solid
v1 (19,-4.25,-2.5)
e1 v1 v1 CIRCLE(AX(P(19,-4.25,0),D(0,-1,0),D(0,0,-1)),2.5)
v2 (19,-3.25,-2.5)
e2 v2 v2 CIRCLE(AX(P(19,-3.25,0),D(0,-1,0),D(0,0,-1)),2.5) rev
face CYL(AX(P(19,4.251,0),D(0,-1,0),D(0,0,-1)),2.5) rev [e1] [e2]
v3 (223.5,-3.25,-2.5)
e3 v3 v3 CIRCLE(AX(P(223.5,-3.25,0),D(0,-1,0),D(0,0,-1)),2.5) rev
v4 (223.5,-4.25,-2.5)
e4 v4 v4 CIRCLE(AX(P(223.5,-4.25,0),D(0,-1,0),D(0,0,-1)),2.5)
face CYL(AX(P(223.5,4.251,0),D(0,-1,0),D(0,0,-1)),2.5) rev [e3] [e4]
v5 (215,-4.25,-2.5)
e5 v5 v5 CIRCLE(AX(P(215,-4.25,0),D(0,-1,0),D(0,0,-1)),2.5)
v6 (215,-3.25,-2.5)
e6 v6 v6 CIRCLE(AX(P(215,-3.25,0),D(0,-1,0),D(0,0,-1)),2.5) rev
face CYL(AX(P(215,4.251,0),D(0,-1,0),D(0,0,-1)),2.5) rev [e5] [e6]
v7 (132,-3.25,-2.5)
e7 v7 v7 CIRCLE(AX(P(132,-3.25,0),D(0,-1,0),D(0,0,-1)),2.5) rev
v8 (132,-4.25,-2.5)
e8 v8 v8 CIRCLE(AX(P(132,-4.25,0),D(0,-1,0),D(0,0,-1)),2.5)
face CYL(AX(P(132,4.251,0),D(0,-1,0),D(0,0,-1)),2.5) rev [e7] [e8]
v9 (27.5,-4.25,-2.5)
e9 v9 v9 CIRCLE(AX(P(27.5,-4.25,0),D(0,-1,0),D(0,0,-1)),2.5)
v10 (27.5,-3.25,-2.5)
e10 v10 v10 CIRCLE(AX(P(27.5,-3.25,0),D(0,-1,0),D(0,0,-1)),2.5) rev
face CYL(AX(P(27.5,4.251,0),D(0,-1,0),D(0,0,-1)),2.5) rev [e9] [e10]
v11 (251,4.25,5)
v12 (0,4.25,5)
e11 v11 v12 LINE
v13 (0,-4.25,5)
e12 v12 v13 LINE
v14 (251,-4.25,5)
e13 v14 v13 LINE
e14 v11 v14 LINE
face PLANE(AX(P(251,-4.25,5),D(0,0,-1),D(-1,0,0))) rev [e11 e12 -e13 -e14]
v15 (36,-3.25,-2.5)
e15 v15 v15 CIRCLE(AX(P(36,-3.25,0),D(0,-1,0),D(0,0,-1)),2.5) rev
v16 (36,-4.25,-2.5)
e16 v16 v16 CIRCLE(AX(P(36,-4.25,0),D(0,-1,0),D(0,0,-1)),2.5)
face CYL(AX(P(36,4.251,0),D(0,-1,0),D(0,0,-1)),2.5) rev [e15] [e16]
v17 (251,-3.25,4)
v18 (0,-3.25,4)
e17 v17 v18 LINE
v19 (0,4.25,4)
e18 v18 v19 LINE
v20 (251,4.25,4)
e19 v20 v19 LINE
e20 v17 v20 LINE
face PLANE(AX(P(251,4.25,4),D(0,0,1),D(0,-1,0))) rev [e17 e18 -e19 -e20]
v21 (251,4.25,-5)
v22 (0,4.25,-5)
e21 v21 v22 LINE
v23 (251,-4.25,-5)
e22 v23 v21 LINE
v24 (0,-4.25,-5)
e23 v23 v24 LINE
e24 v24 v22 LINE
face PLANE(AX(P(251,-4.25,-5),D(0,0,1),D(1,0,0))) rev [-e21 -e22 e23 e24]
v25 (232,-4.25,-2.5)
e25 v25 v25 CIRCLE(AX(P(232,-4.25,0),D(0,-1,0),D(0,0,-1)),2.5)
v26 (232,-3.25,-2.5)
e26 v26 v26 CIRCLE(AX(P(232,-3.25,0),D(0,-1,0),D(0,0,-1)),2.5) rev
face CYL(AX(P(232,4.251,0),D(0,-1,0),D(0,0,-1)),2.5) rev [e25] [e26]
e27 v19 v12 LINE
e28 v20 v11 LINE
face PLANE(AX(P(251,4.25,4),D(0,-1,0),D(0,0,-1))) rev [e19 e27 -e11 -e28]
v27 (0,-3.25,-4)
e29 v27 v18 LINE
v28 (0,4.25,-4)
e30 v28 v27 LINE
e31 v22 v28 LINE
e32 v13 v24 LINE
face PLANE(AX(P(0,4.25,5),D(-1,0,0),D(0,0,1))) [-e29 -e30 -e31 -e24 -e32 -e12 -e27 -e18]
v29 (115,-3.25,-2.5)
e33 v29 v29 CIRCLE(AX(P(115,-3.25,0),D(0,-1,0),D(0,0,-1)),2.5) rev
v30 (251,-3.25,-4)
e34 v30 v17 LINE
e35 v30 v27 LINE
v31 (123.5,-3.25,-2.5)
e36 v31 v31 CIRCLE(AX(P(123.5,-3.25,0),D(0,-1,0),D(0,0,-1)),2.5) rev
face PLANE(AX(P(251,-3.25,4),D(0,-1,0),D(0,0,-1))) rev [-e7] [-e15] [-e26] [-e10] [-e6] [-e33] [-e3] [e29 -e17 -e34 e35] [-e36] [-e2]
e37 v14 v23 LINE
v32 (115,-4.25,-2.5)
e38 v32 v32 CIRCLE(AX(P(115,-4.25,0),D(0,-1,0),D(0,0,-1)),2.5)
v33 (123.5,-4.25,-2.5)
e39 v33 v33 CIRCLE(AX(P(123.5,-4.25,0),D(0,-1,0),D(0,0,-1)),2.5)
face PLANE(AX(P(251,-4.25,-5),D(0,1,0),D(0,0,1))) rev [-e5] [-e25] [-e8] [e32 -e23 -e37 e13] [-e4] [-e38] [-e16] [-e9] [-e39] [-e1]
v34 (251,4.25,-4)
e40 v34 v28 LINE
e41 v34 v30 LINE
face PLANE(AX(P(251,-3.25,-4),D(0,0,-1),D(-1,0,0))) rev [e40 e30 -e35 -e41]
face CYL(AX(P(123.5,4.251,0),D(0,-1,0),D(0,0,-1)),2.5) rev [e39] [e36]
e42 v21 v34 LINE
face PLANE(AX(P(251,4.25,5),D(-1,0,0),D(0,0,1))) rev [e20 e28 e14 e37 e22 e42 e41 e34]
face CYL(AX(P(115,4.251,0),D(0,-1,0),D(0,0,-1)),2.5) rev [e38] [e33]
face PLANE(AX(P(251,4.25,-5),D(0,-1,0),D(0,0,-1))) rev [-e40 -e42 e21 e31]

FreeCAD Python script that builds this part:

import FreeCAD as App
import Part
import Sketcher
from FreeCAD import Vector


def add_polygon(sketch, points):
    """Adds a closed chain of lines whose ends are joined by coincident constraints."""
    first, n = sketch.GeometryCount, len(points)
    for a, b in zip(points, points[1:] + points[:1]):
        sketch.addGeometry(Part.LineSegment(App.Vector(*a, 0), App.Vector(*b, 0)), False)
    for i in range(n):
        sketch.addConstraint(Sketcher.Constraint("Coincident", first + i, 2, first + (i + 1) % n, 1))

doc = App.newDocument("Part")
body = doc.addObject("PartDesign::Body", "Body")

sketch1 = body.newObject("Sketcher::SketchObject", "Sketch")
sketch1.AttachmentSupport = (doc.getObject("YZ_Plane"), [""])
sketch1.MapMode = "FlatFace"
add_polygon(sketch1, [(-3.2, 4), (4.2, 4), (4.2, 5), (-4.2, 5), (-4.2, -5), (4.2, -5), (4.2, -4), (-3.2, -4)])
sketch1.addConstraint([
    Sketcher.Constraint("Horizontal", 0),
    Sketcher.Constraint("Vertical", 1),
    Sketcher.Constraint("Horizontal", 2),
    Sketcher.Constraint("Vertical", 3),
    Sketcher.Constraint("Horizontal", 4),
    Sketcher.Constraint("Vertical", 5),
    Sketcher.Constraint("Horizontal", 6),
    Sketcher.Constraint("Vertical", 7),
    Sketcher.Constraint("Symmetric", 1, 2, 3, 2, -1, 1),
    Sketcher.Constraint("Symmetric", 0, 2, 5, 2, -1),
    Sketcher.Constraint("DistanceY", 1, 1, 1, 2, 1.0),
    Sketcher.Constraint("DistanceY", 3, 2, 3, 1, 10.0),
    Sketcher.Constraint("DistanceX", 0, 1, 0, 2, 7.5),
    Sketcher.Constraint("DistanceX", 2, 2, 2, 1, 8.5),
])
pad1 = body.newObject("PartDesign::Pad", "Pad")
pad1.Profile = sketch1
pad1.Length = 251

sketch2 = body.newObject("Sketcher::SketchObject", "Sketch001")
sketch2.AttachmentSupport = (doc.getObject("XZ_Plane"), [""])
sketch2.MapMode = "FlatFace"
sketch2.AttachmentOffset = App.Placement(Vector(0, 0, 4.25), App.Rotation())
sketch2.addGeometry(Part.Circle(Vector(19, 0, 0), Vector(0, 0, 1), 2.5), False)
sketch2.addConstraint([
    Sketcher.Constraint("PointOnObject", 0, 3, -1),
    Sketcher.Constraint("Diameter", 0, 5.0),
    Sketcher.Constraint("DistanceX", -1, 1, 0, 3, 19.0),
])
pocket1 = body.newObject("PartDesign::Pocket", "Pocket")
pocket1.Profile = sketch2
pocket1.Type = "UpToFirst"

sketch3 = body.newObject("Sketcher::SketchObject", "Sketch002")
sketch3.AttachmentSupport = (doc.getObject("XZ_Plane"), [""])
sketch3.MapMode = "FlatFace"
sketch3.AttachmentOffset = App.Placement(Vector(0, 0, 4.25), App.Rotation())
sketch3.addGeometry(Part.Circle(Vector(27.5, 0, 0), Vector(0, 0, 1), 2.5), False)
sketch3.addConstraint([
    Sketcher.Constraint("PointOnObject", 0, 3, -1),
    Sketcher.Constraint("Diameter", 0, 5.0),
    Sketcher.Constraint("DistanceX", -1, 1, 0, 3, 27.5),
])
pocket2 = body.newObject("PartDesign::Pocket", "Pocket001")
pocket2.Profile = sketch3
pocket2.Type = "UpToFirst"

sketch4 = body.newObject("Sketcher::SketchObject", "Sketch003")
sketch4.AttachmentSupport = (doc.getObject("XZ_Plane"), [""])
sketch4.MapMode = "FlatFace"
sketch4.AttachmentOffset = App.Placement(Vector(0, 0, 4.25), App.Rotation())
sketch4.addGeometry(Part.Circle(Vector(36, 0, 0), Vector(0, 0, 1), 2.5), False)
sketch4.addConstraint([
    Sketcher.Constraint("PointOnObject", 0, 3, -1),
    Sketcher.Constraint("Diameter", 0, 5.0),
    Sketcher.Constraint("DistanceX", -1, 1, 0, 3, 36.0),
])
pocket3 = body.newObject("PartDesign::Pocket", "Pocket002")
pocket3.Profile = sketch4
pocket3.Type = "UpToFirst"

sketch5 = body.newObject("Sketcher::SketchObject", "Sketch004")
sketch5.AttachmentSupport = (doc.getObject("XZ_Plane"), [""])
sketch5.MapMode = "FlatFace"
sketch5.AttachmentOffset = App.Placement(Vector(0, 0, 4.25), App.Rotation())
sketch5.addGeometry(Part.Circle(Vector(115, 0, 0), Vector(0, 0, 1), 2.5), False)
sketch5.addConstraint([
    Sketcher.Constraint("PointOnObject", 0, 3, -1),
    Sketcher.Constraint("Diameter", 0, 5.0),
    Sketcher.Constraint("DistanceX", -1, 1, 0, 3, 115.0),
])
pocket4 = body.newObject("PartDesign::Pocket", "Pocket003")
pocket4.Profile = sketch5
pocket4.Type = "UpToFirst"

sketch6 = body.newObject("Sketcher::SketchObject", "Sketch005")
sketch6.AttachmentSupport = (doc.getObject("XZ_Plane"), [""])
sketch6.MapMode = "FlatFace"
sketch6.AttachmentOffset = App.Placement(Vector(0, 0, 4.25), App.Rotation())
sketch6.addGeometry(Part.Circle(Vector(123.5, 0, 0), Vector(0, 0, 1), 2.5), False)
sketch6.addConstraint([
    Sketcher.Constraint("PointOnObject", 0, 3, -1),
    Sketcher.Constraint("Diameter", 0, 5.0),
    Sketcher.Constraint("DistanceX", -1, 1, 0, 3, 123.5),
])
pocket5 = body.newObject("PartDesign::Pocket", "Pocket004")
pocket5.Profile = sketch6
pocket5.Type = "UpToFirst"

sketch7 = body.newObject("Sketcher::SketchObject", "Sketch006")
sketch7.AttachmentSupport = (doc.getObject("XZ_Plane"), [""])
sketch7.MapMode = "FlatFace"
sketch7.AttachmentOffset = App.Placement(Vector(0, 0, 4.25), App.Rotation())
sketch7.addGeometry(Part.Circle(Vector(132, 0, 0), Vector(0, 0, 1), 2.5), False)
sketch7.addConstraint([
    Sketcher.Constraint("PointOnObject", 0, 3, -1),
    Sketcher.Constraint("Diameter", 0, 5.0),
    Sketcher.Constraint("DistanceX", -1, 1, 0, 3, 132.0),
])
pocket6 = body.newObject("PartDesign::Pocket", "Pocket005")
pocket6.Profile = sketch7
pocket6.Type = "UpToFirst"

sketch8 = body.newObject("Sketcher::SketchObject", "Sketch007")
sketch8.AttachmentSupport = (doc.getObject("XZ_Plane"), [""])
sketch8.MapMode = "FlatFace"
sketch8.AttachmentOffset = App.Placement(Vector(0, 0, 4.25), App.Rotation())
sketch8.addGeometry(Part.Circle(Vector(232, 0, 0), Vector(0, 0, 1), 2.5), False)
sketch8.addConstraint([
    Sketcher.Constraint("PointOnObject", 0, 3, -1),
    Sketcher.Constraint("Diameter", 0, 5.0),
    Sketcher.Constraint("DistanceX", -1, 1, 0, 3, 232.0),
])
pocket7 = body.newObject("PartDesign::Pocket", "Pocket006")
pocket7.Profile = sketch8
pocket7.Type = "UpToFirst"

sketch9 = body.newObject("Sketcher::SketchObject", "Sketch008")
sketch9.AttachmentSupport = (doc.getObject("XZ_Plane"), [""])
sketch9.MapMode = "FlatFace"
sketch9.AttachmentOffset = App.Placement(Vector(0, 0, 4.25), App.Rotation())
sketch9.addGeometry(Part.Circle(Vector(223.5, 0, 0), Vector(0, 0, 1), 2.5), False)
sketch9.addConstraint([
    Sketcher.Constraint("PointOnObject", 0, 3, -1),
    Sketcher.Constraint("Diameter", 0, 5.0),
    Sketcher.Constraint("DistanceX", -1, 1, 0, 3, 223.5),
])
pocket8 = body.newObject("PartDesign::Pocket", "Pocket007")
pocket8.Profile = sketch9
pocket8.Type = "UpToFirst"

sketch10 = body.newObject("Sketcher::SketchObject", "Sketch009")
sketch10.AttachmentSupport = (doc.getObject("XZ_Plane"), [""])
sketch10.MapMode = "FlatFace"
sketch10.AttachmentOffset = App.Placement(Vector(0, 0, 4.25), App.Rotation())
sketch10.addGeometry(Part.Circle(Vector(215, 0, 0), Vector(0, 0, 1), 2.5), False)
sketch10.addConstraint([
    Sketcher.Constraint("PointOnObject", 0, 3, -1),
    Sketcher.Constraint("Diameter", 0, 5.0),
    Sketcher.Constraint("DistanceX", -1, 1, 0, 3, 215.0),
])
pocket9 = body.newObject("PartDesign::Pocket", "Pocket008")
pocket9.Profile = sketch10
pocket9.Type = "UpToFirst"

doc.recompute()
